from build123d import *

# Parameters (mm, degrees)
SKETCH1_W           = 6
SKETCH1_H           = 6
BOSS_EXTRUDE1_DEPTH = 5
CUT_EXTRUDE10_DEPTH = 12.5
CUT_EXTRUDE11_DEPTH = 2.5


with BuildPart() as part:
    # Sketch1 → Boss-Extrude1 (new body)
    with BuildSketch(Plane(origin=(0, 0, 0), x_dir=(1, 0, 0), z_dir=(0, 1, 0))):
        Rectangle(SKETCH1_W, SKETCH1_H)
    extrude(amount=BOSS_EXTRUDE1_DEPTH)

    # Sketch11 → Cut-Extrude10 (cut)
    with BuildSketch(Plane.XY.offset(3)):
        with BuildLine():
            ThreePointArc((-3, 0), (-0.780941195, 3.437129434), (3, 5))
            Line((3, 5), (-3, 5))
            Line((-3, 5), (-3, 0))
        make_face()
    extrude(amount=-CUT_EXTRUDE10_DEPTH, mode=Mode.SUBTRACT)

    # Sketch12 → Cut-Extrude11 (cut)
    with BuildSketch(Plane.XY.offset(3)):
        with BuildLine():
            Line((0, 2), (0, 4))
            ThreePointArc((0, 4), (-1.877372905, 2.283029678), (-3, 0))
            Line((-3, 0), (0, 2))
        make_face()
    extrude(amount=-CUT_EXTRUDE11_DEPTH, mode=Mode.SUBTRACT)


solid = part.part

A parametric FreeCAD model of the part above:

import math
import FreeCAD as App
import Part
import Sketcher

V = App.Vector


def add_polygon(sketch, points):
    """Adds a closed chain of lines whose ends are joined by coincident constraints."""
    first, n = sketch.GeometryCount, len(points)
    for a, b in zip(points, points[1:] + points[:1]):
        sketch.addGeometry(Part.LineSegment(App.Vector(*a, 0), App.Vector(*b, 0)), False)
    for i in range(n):
        sketch.addConstraint(Sketcher.Constraint("Coincident", first + i, 2, first + (i + 1) % n, 1))

doc = App.newDocument("Part")
body = doc.addObject("PartDesign::Body", "Body")

# Sketch on XZ plane
sketch1 = doc.addObject("Sketcher::SketchObject", "Sketch")
body.addObject(sketch1)
sketch1.AttachmentSupport = (doc.XZ_Plane, [""])
sketch1.MapMode = "FlatFace"
add_polygon(sketch1, [(-3, -3), (-3, 3), (3, 3), (3, -3)])  # lines 0-3
sketch1.addConstraint([
    Sketcher.Constraint("Vertical", 0),
    Sketcher.Constraint("Horizontal", 1),
    Sketcher.Constraint("Vertical", 2),
    Sketcher.Constraint("Horizontal", 3),
    Sketcher.Constraint("Symmetric", 0, 2, 2, 2, -1, 1),
    Sketcher.Constraint("Equal", 3, 0),
    Sketcher.Constraint("DistanceX", 1, 1, 1, 2, 6.0),
])
pad1 = doc.addObject("PartDesign::Pad", "Pad")
body.addObject(pad1)
pad1.Profile = sketch1
pad1.Length = 5
pad1.Reversed = True

# Sketch on XY plane
sketch2 = doc.addObject("Sketcher::SketchObject", "Sketch001")
body.addObject(sketch2)
sketch2.AttachmentSupport = (doc.XY_Plane, [""])
sketch2.MapMode = "FlatFace"
sketch2.AttachmentOffset = App.Placement(V(0, 0, 3), App.Rotation())
sketch2.addGeometry([
    Part.ArcOfCircle(Part.Circle(V(4, -2, 0), V(0, 0, 1), 7), math.radians(95), math.radians(165)),
    Part.LineSegment(V(3, 5, 0), V(-3, 5, 0)),
    Part.LineSegment(V(-3, 5, 0), V(-3, 0, 0)),
], False)
sketch2.addConstraint([
    Sketcher.Constraint("Coincident", 0, 1, 1, 1),
    Sketcher.Constraint("Coincident", 1, 2, 2, 1),
    Sketcher.Constraint("Coincident", 2, 2, 0, 2),
    Sketcher.Constraint("Horizontal", 1),
    Sketcher.Constraint("Vertical", 2),
    Sketcher.Constraint("PointOnObject", 2, 2, -1),
    Sketcher.Constraint("DistanceX", 1, 2, 1, 1, 6.0),
    Sketcher.Constraint("DistanceY", 2, 2, 2, 1, 5.0),
    Sketcher.Constraint("DistanceX", -1, 1, 0, 1, 3.0),
    Sketcher.Constraint("Radius", 0, 6.860605),
])
pocket1 = doc.addObject("PartDesign::Pocket", "Pocket")
body.addObject(pocket1)
pocket1.Profile = sketch2
pocket1.Length = 12.5

# Sketch on XY plane
sketch3 = doc.addObject("Sketcher::SketchObject", "Sketch002")
body.addObject(sketch3)
sketch3.AttachmentSupport = (doc.XY_Plane, [""])
sketch3.MapMode = "FlatFace"
sketch3.AttachmentOffset = App.Placement(V(0, 0, 3), App.Rotation())
sketch3.addGeometry([
    Part.LineSegment(V(0, 2, 0), V(0, 4, 0)),
    Part.ArcOfCircle(Part.Circle(V(3.6, -1.8, 0), V(0, 0, 1), 6.9), math.radians(122), math.radians(165)),
    Part.LineSegment(V(-3, 0, 0), V(0, 2, 0)),
], False)
sketch3.addConstraint([
    Sketcher.Constraint("Coincident", 0, 2, 1, 1),
    Sketcher.Constraint("Coincident", 1, 2, 2, 1),
    Sketcher.Constraint("Coincident", 2, 2, 0, 1),
    Sketcher.Constraint("Vertical", 0),
    Sketcher.Constraint("PointOnObject", 0, 2, -2),
    Sketcher.Constraint("PointOnObject", 1, 2, -1),
    Sketcher.Constraint("DistanceY", 0, 1, 0, 2, 2.0),
    Sketcher.Constraint("DistanceY", -1, 1, 0, 2, 4.0),
    Sketcher.Constraint("DistanceX", 1, 2, -1, 1, 3.0),
    Sketcher.Constraint("Radius", 1, 6.860605),
])
pocket2 = doc.addObject("PartDesign::Pocket", "Pocket001")
body.addObject(pocket2)
pocket2.Profile = sketch3
pocket2.Length = 2.5

doc.recompute()
